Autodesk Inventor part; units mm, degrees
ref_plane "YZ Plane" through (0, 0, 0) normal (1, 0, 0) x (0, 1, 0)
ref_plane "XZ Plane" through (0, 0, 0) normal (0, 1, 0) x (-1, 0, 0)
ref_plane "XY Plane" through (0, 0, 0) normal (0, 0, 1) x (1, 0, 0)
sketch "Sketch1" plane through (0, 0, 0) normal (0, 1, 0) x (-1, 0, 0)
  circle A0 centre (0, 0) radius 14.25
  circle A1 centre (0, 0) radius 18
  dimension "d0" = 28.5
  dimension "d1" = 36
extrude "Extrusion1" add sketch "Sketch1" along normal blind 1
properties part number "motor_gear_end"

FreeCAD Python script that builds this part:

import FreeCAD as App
import Part
import Sketcher
Q = App.Units.Quantity

doc = App.newDocument("Part")
body = doc.addObject("PartDesign::Body", "Body")

# Sketch on XZ plane
sketch1 = body.newObject("Sketcher::SketchObject", "Sketch")
sketch1.AttachmentSupport = (doc.getObject("XZ_Plane"), [""])
sketch1.MapMode = "FlatFace"
sketch1.addGeometry(Part.Circle(App.Vector(0, 0, 0), App.Vector(0, 0, 1), 18), False)
sketch1.addGeometry(Part.Circle(App.Vector(0, 0, 0), App.Vector(0, 0, 1), 14), False)
sketch1.addConstraint(Sketcher.Constraint("Coincident", 0, 3, -1, 1))
sketch1.addConstraint(Sketcher.Constraint("Coincident", 1, 3, -1, 1))
sketch1.addConstraint(Sketcher.Constraint("Diameter", 0, Q("36 mm")))
sketch1.addConstraint(Sketcher.Constraint("Diameter", 1, Q("28.5 mm")))
pad1 = body.newObject("PartDesign::Pad", "Pad")
pad1.Profile = sketch1
pad1.Length = 1
pad1.Reversed = True

doc.recompute()
